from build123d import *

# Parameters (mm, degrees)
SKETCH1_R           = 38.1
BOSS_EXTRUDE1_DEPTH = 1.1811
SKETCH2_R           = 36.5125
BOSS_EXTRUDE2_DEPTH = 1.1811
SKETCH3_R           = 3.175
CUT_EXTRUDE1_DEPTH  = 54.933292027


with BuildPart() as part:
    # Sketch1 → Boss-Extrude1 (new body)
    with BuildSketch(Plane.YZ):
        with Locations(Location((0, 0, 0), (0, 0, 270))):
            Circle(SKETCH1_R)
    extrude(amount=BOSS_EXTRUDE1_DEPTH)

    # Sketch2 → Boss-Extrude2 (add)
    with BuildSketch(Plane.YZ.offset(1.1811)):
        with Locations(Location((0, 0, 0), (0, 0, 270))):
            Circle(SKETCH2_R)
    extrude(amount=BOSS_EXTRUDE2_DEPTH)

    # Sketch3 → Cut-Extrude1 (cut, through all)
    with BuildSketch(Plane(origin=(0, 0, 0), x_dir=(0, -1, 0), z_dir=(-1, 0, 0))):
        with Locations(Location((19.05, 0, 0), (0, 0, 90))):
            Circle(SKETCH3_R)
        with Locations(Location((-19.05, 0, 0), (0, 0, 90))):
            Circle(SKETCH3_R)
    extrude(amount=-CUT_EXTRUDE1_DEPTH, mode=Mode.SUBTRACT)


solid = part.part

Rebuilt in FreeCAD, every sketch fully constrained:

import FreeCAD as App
import Part
import Sketcher

V = App.Vector
Q = App.Units.Quantity

doc = App.newDocument("Part")
body = doc.addObject("PartDesign::Body", "Body")

# Sketch on YZ plane
sketch1 = body.newObject("Sketcher::SketchObject", "Sketch")
sketch1.AttachmentSupport = (doc.getObject("YZ_Plane"), [""])
sketch1.MapMode = "FlatFace"
sketch1.addGeometry(Part.Circle(V(0, 0, 0), V(0, 0, 1), 38.1), False)
sketch1.addConstraint(Sketcher.Constraint("Coincident", 0, 3, -1, 1))
sketch1.addConstraint(Sketcher.Constraint("Diameter", 0, Q("3 in")))
pad1 = body.newObject("PartDesign::Pad", "Pad")
pad1.Profile = sketch1
pad1.Length = Q("0.0465 in")

# Sketch on YZ plane
sketch2 = body.newObject("Sketcher::SketchObject", "Sketch001")
sketch2.AttachmentSupport = (doc.getObject("YZ_Plane"), [""])
sketch2.MapMode = "FlatFace"
sketch2.AttachmentOffset = App.Placement(V(0, 0, 0.0465 * 25.4), App.Rotation())
sketch2.addGeometry(Part.Circle(V(0, 0, 0), V(0, 0, 1), 36.5125), False)
sketch2.addConstraint(Sketcher.Constraint("Coincident", 0, 3, -1, 1))
sketch2.addConstraint(Sketcher.Constraint("Diameter", 0, Q("2.875 in")))
pad2 = body.newObject("PartDesign::Pad", "Pad001")
pad2.Profile = sketch2
pad2.Length = Q("0.0465 in")

# Sketch on YZ plane
sketch3 = body.newObject("Sketcher::SketchObject", "Sketch002")
sketch3.AttachmentSupport = (doc.getObject("YZ_Plane"), [""])
sketch3.MapMode = "FlatFace"
sketch3.addGeometry(Part.Circle(V(-19.05, 0, 0), V(0, 0, 1), 3.175), False)
sketch3.addGeometry(Part.Circle(V(19.05, 0, 0), V(0, 0, 1), 3.175), False)
sketch3.addConstraint(Sketcher.Constraint("Equal", 0, 1))
sketch3.addConstraint(Sketcher.Constraint("Symmetric", 0, 3, 1, 3, -1, 1))
sketch3.addConstraint(Sketcher.Constraint("PointOnObject", 0, 3, -1))
sketch3.addConstraint(Sketcher.Constraint("Diameter", 0, Q("0.25 in")))
sketch3.addConstraint(Sketcher.Constraint("DistanceX", 0, 3, 1, 3, Q("1.5 in")))
pocket1 = body.newObject("PartDesign::Pocket", "Pocket")
pocket1.Profile = sketch3
pocket1.Type = "ThroughAll"
pocket1.Reversed = True

doc.recompute()
